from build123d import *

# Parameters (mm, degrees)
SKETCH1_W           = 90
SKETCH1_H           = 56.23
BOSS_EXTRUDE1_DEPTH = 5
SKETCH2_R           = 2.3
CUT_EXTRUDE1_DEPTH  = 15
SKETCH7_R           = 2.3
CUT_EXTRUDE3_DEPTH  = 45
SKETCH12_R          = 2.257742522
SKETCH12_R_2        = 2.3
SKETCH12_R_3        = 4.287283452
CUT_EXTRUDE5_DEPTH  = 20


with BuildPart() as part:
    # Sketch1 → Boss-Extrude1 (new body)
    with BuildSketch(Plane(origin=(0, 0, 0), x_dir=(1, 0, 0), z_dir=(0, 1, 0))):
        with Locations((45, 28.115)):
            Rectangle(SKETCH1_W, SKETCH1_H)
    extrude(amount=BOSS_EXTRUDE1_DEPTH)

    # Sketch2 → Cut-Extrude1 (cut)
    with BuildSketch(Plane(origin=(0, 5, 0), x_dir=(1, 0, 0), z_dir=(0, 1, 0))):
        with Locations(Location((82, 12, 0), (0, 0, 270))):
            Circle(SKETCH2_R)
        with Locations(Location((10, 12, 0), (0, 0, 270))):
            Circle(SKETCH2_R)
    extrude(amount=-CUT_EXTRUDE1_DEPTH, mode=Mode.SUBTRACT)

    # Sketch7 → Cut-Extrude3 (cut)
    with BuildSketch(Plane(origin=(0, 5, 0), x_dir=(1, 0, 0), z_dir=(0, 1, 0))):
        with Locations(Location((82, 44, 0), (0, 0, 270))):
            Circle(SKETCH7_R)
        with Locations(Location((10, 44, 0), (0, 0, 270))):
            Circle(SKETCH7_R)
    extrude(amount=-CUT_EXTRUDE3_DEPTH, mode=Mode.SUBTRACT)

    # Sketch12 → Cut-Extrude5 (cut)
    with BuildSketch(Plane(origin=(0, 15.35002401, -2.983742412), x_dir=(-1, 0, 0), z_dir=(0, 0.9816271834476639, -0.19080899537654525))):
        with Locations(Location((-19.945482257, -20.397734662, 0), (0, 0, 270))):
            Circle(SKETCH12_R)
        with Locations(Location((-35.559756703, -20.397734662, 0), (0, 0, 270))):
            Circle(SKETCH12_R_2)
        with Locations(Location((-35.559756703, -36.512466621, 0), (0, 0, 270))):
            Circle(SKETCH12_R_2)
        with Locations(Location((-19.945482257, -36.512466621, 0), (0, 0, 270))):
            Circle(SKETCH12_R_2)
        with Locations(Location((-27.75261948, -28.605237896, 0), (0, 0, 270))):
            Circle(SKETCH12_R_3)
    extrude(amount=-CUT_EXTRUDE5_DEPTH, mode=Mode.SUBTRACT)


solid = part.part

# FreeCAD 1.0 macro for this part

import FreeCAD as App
import Part
import Sketcher
Q = App.Units.Quantity

doc = App.newDocument("Part")
params = doc.addObject("Spreadsheet::Sheet", "Params")
for row, (alias, value) in enumerate([
    ("sketch1_width", "90 mm"),
    ("sketch1_height", "56.23 mm"),
    ("pad1_length", "5 mm"),
    ("sketch2_diameter", "4.6 mm"),
    ("pocket1_length", "15 mm"),
    ("sketch3_diameter", "4.6 mm"),
    ("pocket2_length", "45 mm"),
    ("sketch4_diameter", "4.6 mm"),
    ("pocket3_length", "20 mm"),
], start=1):
    params.set(f"A{row}", alias)
    params.set(f"B{row}", "=" + value)
    params.setAlias(f"B{row}", alias)

body = doc.addObject("PartDesign::Body", "Body")

# Sketch on XZ plane
sketch1 = body.newObject("Sketcher::SketchObject", "Sketch")
sketch1.AttachmentSupport = (doc.getObject("XZ_Plane"), [""])
sketch1.MapMode = "FlatFace"
sketch1.addGeometry(Part.LineSegment(App.Vector(0, -56, 0), App.Vector(0, 0, 0)), False)
sketch1.addGeometry(Part.LineSegment(App.Vector(0, 0, 0), App.Vector(90, 0, 0)), False)
sketch1.addGeometry(Part.LineSegment(App.Vector(90, 0, 0), App.Vector(90, -56, 0)), False)
sketch1.addGeometry(Part.LineSegment(App.Vector(90, -56, 0), App.Vector(0, -56, 0)), False)
sketch1.addConstraint(Sketcher.Constraint("Coincident", 0, 2, 1, 1))
sketch1.addConstraint(Sketcher.Constraint("Coincident", 1, 2, 2, 1))
sketch1.addConstraint(Sketcher.Constraint("Coincident", 2, 2, 3, 1))
sketch1.addConstraint(Sketcher.Constraint("Coincident", 3, 2, 0, 1))
sketch1.addConstraint(Sketcher.Constraint("Vertical", 0))
sketch1.addConstraint(Sketcher.Constraint("Horizontal", 1))
sketch1.addConstraint(Sketcher.Constraint("Vertical", 2))
sketch1.addConstraint(Sketcher.Constraint("Horizontal", 3))
sketch1.addConstraint(Sketcher.Constraint("Coincident", 0, 2, -1, 1))
sketch1.addConstraint(Sketcher.Constraint("DistanceX", 1, 1, 1, 2, Q("90 mm")))
sketch1.addConstraint(Sketcher.Constraint("DistanceY", 0, 1, 0, 2, Q("56.23 mm")))
sketch1.setExpression("Constraints[9]", "Params.sketch1_width")
sketch1.setExpression("Constraints[10]", "Params.sketch1_height")
pad1 = body.newObject("PartDesign::Pad", "Pad")
pad1.Profile = sketch1
pad1.setExpression("Length", "Params.pad1_length")
pad1.Reversed = True

# Sketch on XZ plane
sketch2 = body.newObject("Sketcher::SketchObject", "Sketch001")
sketch2.AttachmentSupport = (doc.getObject("XZ_Plane"), [""])
sketch2.MapMode = "FlatFace"
sketch2.AttachmentOffset = App.Placement(App.Vector(0, 0, -5), App.Rotation())
sketch2.addGeometry(Part.Circle(App.Vector(82, -12, 0), App.Vector(0, 0, 1), 2.3), False)
sketch2.addGeometry(Part.Circle(App.Vector(10, -12, 0), App.Vector(0, 0, 1), 2.3), False)
sketch2.addConstraint(Sketcher.Constraint("Equal", 0, 1))
sketch2.addConstraint(Sketcher.Constraint("Horizontal", 0, 3, 1, 3))
sketch2.addConstraint(Sketcher.Constraint("Diameter", 0, Q("4.6 mm")))
sketch2.addConstraint(Sketcher.Constraint("DistanceX", -1, 1, 0, 3, Q("82 mm")))
sketch2.addConstraint(Sketcher.Constraint("DistanceY", 0, 3, -1, 1, Q("12 mm")))
sketch2.addConstraint(Sketcher.Constraint("DistanceX", -1, 1, 1, 3, Q("10 mm")))
sketch2.setExpression("Constraints[2]", "Params.sketch2_diameter")
pocket1 = body.newObject("PartDesign::Pocket", "Pocket")
pocket1.Profile = sketch2
pocket1.setExpression("Length", "Params.pocket1_length")
pocket1.Reversed = True

# Sketch on XZ plane
sketch3 = body.newObject("Sketcher::SketchObject", "Sketch002")
sketch3.AttachmentSupport = (doc.getObject("XZ_Plane"), [""])
sketch3.MapMode = "FlatFace"
sketch3.AttachmentOffset = App.Placement(App.Vector(0, 0, -5), App.Rotation())
sketch3.addGeometry(Part.Circle(App.Vector(82, -44, 0), App.Vector(0, 0, 1), 2.3), False)
sketch3.addGeometry(Part.Circle(App.Vector(10, -44, 0), App.Vector(0, 0, 1), 2.3), False)
sketch3.addConstraint(Sketcher.Constraint("Equal", 0, 1))
sketch3.addConstraint(Sketcher.Constraint("Horizontal", 0, 3, 1, 3))
sketch3.addConstraint(Sketcher.Constraint("Diameter", 0, Q("4.6 mm")))
sketch3.addConstraint(Sketcher.Constraint("DistanceX", -1, 1, 0, 3, Q("82 mm")))
sketch3.addConstraint(Sketcher.Constraint("DistanceY", 0, 3, -1, 1, Q("44 mm")))
sketch3.addConstraint(Sketcher.Constraint("DistanceX", -1, 1, 1, 3, Q("10 mm")))
sketch3.setExpression("Constraints[2]", "Params.sketch3_diameter")
pocket2 = body.newObject("PartDesign::Pocket", "Pocket001")
pocket2.Profile = sketch3
pocket2.setExpression("Length", "Params.pocket2_length")
pocket2.Reversed = True

# Sketch on an angled plane
sketch4 = body.newObject("Sketcher::SketchObject", "Sketch003")
sketch4.Placement = App.Placement(App.Vector(0, 15.350024, -2.983742), App.Rotation(App.Vector(-1, 0, 0), App.Vector(0, 0.190808995, 0.981627183), App.Vector(0, 0.981627183, -0.190808995), "ZXY"))
sketch4.addGeometry(Part.Circle(App.Vector(-19.9, -20.4, 0), App.Vector(0, 0, 1), 2.3), False)
sketch4.addGeometry(Part.Circle(App.Vector(-35.6, -20.4, 0), App.Vector(0, 0, 1), 2.3), False)
sketch4.addGeometry(Part.Circle(App.Vector(-35.6, -36.5, 0), App.Vector(0, 0, 1), 2.3), False)
sketch4.addGeometry(Part.Circle(App.Vector(-19.9, -36.5, 0), App.Vector(0, 0, 1), 2.3), False)
sketch4.addGeometry(Part.Circle(App.Vector(-27.8, -28.6, 0), App.Vector(0, 0, 1), 4.3), False)
sketch4.addConstraint(Sketcher.Constraint("Equal", 1, 2))
sketch4.addConstraint(Sketcher.Constraint("Equal", 2, 3))
sketch4.addConstraint(Sketcher.Constraint("Horizontal", 0, 3, 1, 3))
sketch4.addConstraint(Sketcher.Constraint("Horizontal", 2, 3, 3, 3))
sketch4.addConstraint(Sketcher.Constraint("Vertical", 1, 3, 2, 3))
sketch4.addConstraint(Sketcher.Constraint("Vertical", 0, 3, 3, 3))
sketch4.addConstraint(Sketcher.Constraint("Diameter", 1, Q("4.6 mm")))
sketch4.addConstraint(Sketcher.Constraint("Diameter", 0, Q("4.515485 mm")))
sketch4.addConstraint(Sketcher.Constraint("Diameter", 4, Q("8.574567 mm")))
sketch4.addConstraint(Sketcher.Constraint("DistanceX", 4, 3, -1, 1, Q("27.752619 mm")))
sketch4.addConstraint(Sketcher.Constraint("DistanceY", 2, 3, 1, 3, Q("16.114732 mm")))
sketch4.addConstraint(Sketcher.Constraint("DistanceY", 2, 3, 4, 3, Q("7.907229 mm")))
sketch4.addConstraint(Sketcher.Constraint("DistanceX", 0, 3, -1, 1, Q("19.945482 mm")))
sketch4.addConstraint(Sketcher.Constraint("DistanceY", 0, 3, -1, 1, Q("20.397735 mm")))
sketch4.addConstraint(Sketcher.Constraint("DistanceX", 1, 3, -1, 1, Q("35.559757 mm")))
sketch4.setExpression("Constraints[6]", "Params.sketch4_diameter")
pocket3 = body.newObject("PartDesign::Pocket", "Pocket002")
pocket3.Profile = sketch4
pocket3.setExpression("Length", "Params.pocket3_length")

doc.recompute()
